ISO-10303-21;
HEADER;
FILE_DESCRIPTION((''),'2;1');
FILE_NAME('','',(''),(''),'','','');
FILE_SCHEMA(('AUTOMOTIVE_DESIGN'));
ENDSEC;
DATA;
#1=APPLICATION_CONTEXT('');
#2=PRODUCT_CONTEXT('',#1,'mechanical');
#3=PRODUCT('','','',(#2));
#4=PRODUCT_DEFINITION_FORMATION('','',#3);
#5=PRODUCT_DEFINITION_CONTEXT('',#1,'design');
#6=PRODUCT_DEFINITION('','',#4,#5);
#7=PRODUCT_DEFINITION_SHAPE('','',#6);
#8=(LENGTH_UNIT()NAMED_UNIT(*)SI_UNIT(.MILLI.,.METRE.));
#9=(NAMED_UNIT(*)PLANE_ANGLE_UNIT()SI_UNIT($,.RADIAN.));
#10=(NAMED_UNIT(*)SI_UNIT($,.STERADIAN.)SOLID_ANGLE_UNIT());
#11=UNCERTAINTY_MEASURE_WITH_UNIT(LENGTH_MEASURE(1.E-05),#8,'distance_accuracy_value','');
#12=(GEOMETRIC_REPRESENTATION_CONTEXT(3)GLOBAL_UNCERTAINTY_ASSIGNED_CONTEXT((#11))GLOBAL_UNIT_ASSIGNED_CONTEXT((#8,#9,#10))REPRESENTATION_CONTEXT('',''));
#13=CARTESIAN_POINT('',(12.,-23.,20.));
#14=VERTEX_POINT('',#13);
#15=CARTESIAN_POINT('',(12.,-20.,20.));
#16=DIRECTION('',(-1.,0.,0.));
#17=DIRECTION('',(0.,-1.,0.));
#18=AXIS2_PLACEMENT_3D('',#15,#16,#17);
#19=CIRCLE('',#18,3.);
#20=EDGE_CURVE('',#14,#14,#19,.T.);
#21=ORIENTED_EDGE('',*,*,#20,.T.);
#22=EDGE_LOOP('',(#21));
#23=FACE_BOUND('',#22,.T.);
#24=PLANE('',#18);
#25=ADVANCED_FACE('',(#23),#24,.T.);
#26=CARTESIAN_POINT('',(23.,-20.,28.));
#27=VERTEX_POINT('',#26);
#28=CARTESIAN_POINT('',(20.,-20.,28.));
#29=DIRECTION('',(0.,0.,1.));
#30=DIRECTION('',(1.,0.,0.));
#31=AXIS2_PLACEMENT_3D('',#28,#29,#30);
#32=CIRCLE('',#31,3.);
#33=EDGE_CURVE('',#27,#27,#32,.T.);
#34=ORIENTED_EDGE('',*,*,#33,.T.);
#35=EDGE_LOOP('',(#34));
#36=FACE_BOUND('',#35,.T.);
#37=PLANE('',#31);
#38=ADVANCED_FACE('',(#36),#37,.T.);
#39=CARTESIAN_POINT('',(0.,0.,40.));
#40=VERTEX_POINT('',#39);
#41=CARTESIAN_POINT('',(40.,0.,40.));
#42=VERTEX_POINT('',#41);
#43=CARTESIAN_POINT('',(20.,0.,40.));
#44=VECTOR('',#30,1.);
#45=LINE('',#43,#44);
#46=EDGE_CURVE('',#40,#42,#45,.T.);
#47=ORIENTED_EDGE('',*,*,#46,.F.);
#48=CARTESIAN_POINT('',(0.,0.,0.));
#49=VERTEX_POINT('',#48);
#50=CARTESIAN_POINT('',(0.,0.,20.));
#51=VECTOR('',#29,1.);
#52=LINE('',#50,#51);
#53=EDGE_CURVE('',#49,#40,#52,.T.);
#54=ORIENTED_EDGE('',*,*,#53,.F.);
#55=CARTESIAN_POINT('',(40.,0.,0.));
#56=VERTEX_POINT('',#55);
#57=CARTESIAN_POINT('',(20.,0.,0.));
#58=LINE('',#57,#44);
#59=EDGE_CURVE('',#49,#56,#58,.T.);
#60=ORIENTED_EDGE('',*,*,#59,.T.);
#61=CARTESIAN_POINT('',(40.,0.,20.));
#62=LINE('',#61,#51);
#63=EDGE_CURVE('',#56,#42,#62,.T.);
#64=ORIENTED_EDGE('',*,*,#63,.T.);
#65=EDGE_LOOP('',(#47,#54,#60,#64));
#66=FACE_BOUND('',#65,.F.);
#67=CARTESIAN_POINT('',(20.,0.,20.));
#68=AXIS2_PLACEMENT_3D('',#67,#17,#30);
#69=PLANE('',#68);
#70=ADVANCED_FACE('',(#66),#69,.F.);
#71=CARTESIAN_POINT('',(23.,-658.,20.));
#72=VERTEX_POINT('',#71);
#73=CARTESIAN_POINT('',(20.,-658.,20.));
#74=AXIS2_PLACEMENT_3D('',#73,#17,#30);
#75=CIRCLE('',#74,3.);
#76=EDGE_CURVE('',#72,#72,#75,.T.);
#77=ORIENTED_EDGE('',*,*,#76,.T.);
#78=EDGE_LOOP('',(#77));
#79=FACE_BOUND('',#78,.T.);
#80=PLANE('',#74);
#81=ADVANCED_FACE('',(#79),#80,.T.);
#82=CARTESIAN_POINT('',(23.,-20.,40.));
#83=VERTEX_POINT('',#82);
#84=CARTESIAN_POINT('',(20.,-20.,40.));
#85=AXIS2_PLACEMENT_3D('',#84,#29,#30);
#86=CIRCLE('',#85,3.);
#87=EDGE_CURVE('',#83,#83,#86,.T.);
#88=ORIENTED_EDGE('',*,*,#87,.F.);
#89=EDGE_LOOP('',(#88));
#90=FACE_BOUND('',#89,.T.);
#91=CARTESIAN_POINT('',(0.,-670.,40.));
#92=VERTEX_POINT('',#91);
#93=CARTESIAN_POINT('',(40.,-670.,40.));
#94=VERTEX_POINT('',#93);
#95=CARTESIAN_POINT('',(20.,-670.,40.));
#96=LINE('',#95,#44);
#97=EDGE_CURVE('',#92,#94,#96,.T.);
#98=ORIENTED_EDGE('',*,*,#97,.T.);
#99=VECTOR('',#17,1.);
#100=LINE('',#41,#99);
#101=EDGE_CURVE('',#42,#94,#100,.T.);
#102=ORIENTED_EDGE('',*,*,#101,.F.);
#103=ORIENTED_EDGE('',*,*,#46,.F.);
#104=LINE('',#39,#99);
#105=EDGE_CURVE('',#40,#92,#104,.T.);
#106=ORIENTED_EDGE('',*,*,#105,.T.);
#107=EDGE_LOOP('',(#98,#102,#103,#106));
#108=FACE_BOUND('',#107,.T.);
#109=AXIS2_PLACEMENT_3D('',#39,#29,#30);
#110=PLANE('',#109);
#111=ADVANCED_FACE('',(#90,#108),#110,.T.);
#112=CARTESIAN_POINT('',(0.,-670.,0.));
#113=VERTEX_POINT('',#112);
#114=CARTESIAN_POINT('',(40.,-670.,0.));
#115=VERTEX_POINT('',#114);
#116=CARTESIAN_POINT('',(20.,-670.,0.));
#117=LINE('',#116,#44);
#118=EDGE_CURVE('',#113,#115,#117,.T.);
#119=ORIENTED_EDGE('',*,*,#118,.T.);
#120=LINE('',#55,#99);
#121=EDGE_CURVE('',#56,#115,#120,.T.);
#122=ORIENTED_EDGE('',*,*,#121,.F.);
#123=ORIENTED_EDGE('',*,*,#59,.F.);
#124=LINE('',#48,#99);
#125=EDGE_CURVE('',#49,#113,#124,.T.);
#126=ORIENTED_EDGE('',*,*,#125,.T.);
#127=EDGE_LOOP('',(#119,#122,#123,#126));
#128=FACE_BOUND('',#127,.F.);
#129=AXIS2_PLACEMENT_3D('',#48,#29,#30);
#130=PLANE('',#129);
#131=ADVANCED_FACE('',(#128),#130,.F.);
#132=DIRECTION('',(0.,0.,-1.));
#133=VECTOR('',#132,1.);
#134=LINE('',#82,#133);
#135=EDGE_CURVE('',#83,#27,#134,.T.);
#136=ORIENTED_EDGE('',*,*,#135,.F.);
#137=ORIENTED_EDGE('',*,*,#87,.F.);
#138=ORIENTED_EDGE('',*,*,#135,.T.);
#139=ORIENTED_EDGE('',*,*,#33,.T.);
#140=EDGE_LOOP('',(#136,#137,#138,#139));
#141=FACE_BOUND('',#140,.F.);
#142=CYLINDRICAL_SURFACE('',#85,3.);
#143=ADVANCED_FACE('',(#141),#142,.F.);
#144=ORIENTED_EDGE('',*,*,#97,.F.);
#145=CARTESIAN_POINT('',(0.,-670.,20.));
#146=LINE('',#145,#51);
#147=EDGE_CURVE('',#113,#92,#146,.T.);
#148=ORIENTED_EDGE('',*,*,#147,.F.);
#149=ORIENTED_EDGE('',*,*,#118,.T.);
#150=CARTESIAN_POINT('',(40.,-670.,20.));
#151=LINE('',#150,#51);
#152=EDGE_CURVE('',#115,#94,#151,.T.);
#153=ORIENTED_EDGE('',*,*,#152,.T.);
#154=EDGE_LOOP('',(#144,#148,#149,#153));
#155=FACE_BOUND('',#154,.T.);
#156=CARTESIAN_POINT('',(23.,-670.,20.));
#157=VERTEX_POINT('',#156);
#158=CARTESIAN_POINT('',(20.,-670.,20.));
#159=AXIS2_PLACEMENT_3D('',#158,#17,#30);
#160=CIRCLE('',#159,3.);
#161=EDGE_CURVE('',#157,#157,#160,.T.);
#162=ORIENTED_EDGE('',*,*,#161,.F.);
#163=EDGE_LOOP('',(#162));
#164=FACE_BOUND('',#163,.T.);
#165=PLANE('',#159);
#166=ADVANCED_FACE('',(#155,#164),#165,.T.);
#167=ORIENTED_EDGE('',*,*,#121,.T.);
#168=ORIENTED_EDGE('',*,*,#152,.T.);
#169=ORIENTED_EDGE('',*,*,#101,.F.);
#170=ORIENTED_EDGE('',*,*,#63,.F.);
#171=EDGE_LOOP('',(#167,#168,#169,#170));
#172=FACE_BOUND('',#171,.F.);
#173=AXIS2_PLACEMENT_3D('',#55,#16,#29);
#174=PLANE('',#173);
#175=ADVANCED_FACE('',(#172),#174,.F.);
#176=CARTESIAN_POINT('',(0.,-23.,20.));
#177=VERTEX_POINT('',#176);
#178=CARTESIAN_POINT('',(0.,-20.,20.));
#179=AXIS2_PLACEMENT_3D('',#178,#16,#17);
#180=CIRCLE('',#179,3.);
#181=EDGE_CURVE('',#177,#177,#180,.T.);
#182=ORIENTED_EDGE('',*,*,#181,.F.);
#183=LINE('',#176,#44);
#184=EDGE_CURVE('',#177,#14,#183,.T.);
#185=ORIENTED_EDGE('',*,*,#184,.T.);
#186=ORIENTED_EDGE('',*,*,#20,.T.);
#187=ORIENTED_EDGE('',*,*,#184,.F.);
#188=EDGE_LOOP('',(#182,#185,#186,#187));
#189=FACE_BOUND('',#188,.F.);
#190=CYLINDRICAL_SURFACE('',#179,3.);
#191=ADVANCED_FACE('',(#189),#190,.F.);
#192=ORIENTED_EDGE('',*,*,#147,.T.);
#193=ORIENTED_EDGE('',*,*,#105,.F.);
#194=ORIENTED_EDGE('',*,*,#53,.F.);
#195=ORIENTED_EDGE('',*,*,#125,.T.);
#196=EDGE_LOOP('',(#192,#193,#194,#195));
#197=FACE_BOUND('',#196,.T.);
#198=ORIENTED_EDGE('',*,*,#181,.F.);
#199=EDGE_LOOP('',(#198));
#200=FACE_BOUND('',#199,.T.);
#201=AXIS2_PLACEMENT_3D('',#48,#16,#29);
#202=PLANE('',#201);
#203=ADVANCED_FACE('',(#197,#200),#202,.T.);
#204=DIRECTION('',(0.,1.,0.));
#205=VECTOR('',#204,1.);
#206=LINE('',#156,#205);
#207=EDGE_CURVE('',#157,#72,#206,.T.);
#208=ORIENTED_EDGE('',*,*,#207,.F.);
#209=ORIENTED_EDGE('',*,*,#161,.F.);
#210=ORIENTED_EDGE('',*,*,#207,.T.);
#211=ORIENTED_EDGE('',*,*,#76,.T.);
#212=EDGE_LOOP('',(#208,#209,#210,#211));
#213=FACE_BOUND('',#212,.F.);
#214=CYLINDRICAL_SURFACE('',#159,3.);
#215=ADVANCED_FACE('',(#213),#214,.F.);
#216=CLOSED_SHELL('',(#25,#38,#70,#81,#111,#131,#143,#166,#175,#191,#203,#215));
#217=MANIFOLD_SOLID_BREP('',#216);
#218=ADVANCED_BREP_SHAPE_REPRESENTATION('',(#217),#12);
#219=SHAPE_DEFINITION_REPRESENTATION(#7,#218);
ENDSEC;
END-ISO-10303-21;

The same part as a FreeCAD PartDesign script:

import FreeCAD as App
import Part
import Sketcher


def add_polygon(sketch, points):
    """Adds a closed chain of lines whose ends are joined by coincident constraints."""
    first, n = sketch.GeometryCount, len(points)
    for a, b in zip(points, points[1:] + points[:1]):
        sketch.addGeometry(Part.LineSegment(App.Vector(*a, 0), App.Vector(*b, 0)), False)
    for i in range(n):
        sketch.addConstraint(Sketcher.Constraint("Coincident", first + i, 2, first + (i + 1) % n, 1))

doc = App.newDocument("Part")
body = doc.addObject("PartDesign::Body", "Body")

sketch1 = body.newObject("Sketcher::SketchObject", "Sketch")
sketch1.AttachmentSupport = (doc.getObject("XZ_Plane"), [""])
sketch1.MapMode = "FlatFace"
add_polygon(sketch1, [(0, 40), (0, 0), (40, 0), (40, 40)])
sketch1.addConstraint(Sketcher.Constraint("Vertical", 0))
sketch1.addConstraint(Sketcher.Constraint("Horizontal", 1))
sketch1.addConstraint(Sketcher.Constraint("Vertical", 2))
sketch1.addConstraint(Sketcher.Constraint("Horizontal", 3))
sketch1.addConstraint(Sketcher.Constraint("Coincident", 0, 2, -1, 1))
sketch1.addConstraint(Sketcher.Constraint("Equal", 3, 0))
sketch1.addConstraint(Sketcher.Constraint("DistanceX", 1, 1, 1, 2, 40.0))
pad1 = body.newObject("PartDesign::Pad", "Pad")
pad1.Profile = sketch1
pad1.Length = 670

sketch2 = body.newObject("Sketcher::SketchObject", "Sketch001")
sketch2.AttachmentSupport = (doc.getObject("XZ_Plane"), [""])
sketch2.MapMode = "FlatFace"
sketch2.AttachmentOffset = App.Placement(App.Vector(0, 0, 670), App.Rotation())
sketch2.addGeometry(Part.Circle(App.Vector(20, 20, 0), App.Vector(0, 0, 1), 3), False)
sketch2.addConstraint(Sketcher.Constraint("Diameter", 0, 6.0))
sketch2.addConstraint(Sketcher.Constraint("DistanceX", -1, 1, 0, 3, 20.0))
sketch2.addConstraint(Sketcher.Constraint("DistanceY", -1, 1, 0, 3, 20.0))
pocket1 = body.newObject("PartDesign::Pocket", "Pocket")
pocket1.Profile = sketch2
pocket1.Length = 12

sketch3 = body.newObject("Sketcher::SketchObject", "Sketch002")
sketch3.AttachmentSupport = (doc.getObject("YZ_Plane"), [""])
sketch3.MapMode = "FlatFace"
sketch3.addGeometry(Part.Circle(App.Vector(-20, 20, 0), App.Vector(0, 0, 1), 3), False)
sketch3.addConstraint(Sketcher.Constraint("Diameter", 0, 6.0))
sketch3.addConstraint(Sketcher.Constraint("DistanceX", 0, 3, -1, 1, 20.0))
sketch3.addConstraint(Sketcher.Constraint("DistanceY", -1, 1, 0, 3, 20.0))
pocket2 = body.newObject("PartDesign::Pocket", "Pocket001")
pocket2.Profile = sketch3
pocket2.Length = 12
pocket2.Reversed = True

sketch4 = body.newObject("Sketcher::SketchObject", "Sketch003")
sketch4.AttachmentSupport = (doc.getObject("XY_Plane"), [""])
sketch4.MapMode = "FlatFace"
sketch4.AttachmentOffset = App.Placement(App.Vector(0, 0, 40), App.Rotation())
sketch4.addGeometry(Part.Circle(App.Vector(20, -20, 0), App.Vector(0, 0, 1), 3), False)
sketch4.addConstraint(Sketcher.Constraint("Diameter", 0, 6.0))
sketch4.addConstraint(Sketcher.Constraint("DistanceX", -1, 1, 0, 3, 20.0))
sketch4.addConstraint(Sketcher.Constraint("DistanceY", 0, 3, -1, 1, 20.0))
pocket3 = body.newObject("PartDesign::Pocket", "Pocket002")
pocket3.Profile = sketch4
pocket3.Length = 12

doc.recompute()
